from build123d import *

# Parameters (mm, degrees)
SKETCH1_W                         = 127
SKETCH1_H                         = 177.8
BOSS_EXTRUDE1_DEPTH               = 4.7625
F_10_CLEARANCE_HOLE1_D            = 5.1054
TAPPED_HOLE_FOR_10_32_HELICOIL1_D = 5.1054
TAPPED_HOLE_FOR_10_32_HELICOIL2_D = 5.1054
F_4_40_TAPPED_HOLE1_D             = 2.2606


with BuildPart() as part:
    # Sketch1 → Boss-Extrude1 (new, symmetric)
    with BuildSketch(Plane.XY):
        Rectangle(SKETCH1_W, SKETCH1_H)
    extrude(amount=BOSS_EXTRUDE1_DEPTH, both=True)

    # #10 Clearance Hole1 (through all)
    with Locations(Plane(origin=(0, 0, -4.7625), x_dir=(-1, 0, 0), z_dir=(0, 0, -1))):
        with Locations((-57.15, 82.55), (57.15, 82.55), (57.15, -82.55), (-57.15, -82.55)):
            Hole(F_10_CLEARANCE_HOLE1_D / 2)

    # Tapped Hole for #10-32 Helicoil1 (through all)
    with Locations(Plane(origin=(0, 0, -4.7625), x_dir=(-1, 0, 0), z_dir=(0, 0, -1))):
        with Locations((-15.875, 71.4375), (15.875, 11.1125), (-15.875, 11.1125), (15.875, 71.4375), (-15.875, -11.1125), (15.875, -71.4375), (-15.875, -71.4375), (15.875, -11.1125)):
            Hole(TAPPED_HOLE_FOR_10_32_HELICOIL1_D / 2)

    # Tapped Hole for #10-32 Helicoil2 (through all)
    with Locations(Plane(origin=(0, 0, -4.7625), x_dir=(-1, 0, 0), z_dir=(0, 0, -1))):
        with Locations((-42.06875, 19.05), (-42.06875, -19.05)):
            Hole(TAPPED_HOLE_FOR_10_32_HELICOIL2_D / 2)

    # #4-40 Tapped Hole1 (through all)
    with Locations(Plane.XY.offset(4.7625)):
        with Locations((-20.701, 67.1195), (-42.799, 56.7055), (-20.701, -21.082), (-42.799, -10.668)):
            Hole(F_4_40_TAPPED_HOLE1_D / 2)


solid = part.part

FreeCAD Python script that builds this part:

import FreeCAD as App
import Part
import Sketcher
Q = App.Units.Quantity


def add_polygon(sketch, points):
    """Adds a closed chain of lines whose ends are joined by coincident constraints."""
    first, n = sketch.GeometryCount, len(points)
    for a, b in zip(points, points[1:] + points[:1]):
        sketch.addGeometry(Part.LineSegment(App.Vector(*a, 0), App.Vector(*b, 0)), False)
    for i in range(n):
        sketch.addConstraint(Sketcher.Constraint("Coincident", first + i, 2, first + (i + 1) % n, 1))

doc = App.newDocument("Part")
body = doc.addObject("PartDesign::Body", "Body")

# Sketch on XY plane
sketch1 = body.newObject("Sketcher::SketchObject", "Sketch")
sketch1.AttachmentSupport = (doc.getObject("XY_Plane"), [""])
sketch1.MapMode = "FlatFace"
add_polygon(sketch1, [(-64, 89), (-64, -89), (64, -89), (64, 89)])  # lines 0-3
sketch1.addConstraint([
    Sketcher.Constraint("Vertical", 0),
    Sketcher.Constraint("Horizontal", 1),
    Sketcher.Constraint("Vertical", 2),
    Sketcher.Constraint("Horizontal", 3),
    Sketcher.Constraint("Symmetric", 0, 2, 2, 2, -1, 1),
    Sketcher.Constraint("DistanceX", 1, 1, 1, 2, Q("5 in")),
    Sketcher.Constraint("DistanceY", 0, 2, 0, 1, Q("7 in")),
])
pad1 = body.newObject("PartDesign::Pad", "Pad")
pad1.Profile = sketch1
pad1.Length = Q("0.375 in")
pad1.Midplane = True

# Sketch on XY plane
sketch2 = body.newObject("Sketcher::SketchObject", "Sketch001")
sketch2.AttachmentSupport = (doc.getObject("XY_Plane"), [""])
sketch2.MapMode = "FlatFace"
sketch2.AttachmentOffset = App.Placement(App.Vector(0, 0, -0.1875 * 25.4), App.Rotation())
sketch2.addGeometry([
    Part.Circle(App.Vector(57.1, 82.5, 0), App.Vector(0, 0, 1), 2.6),
    Part.Circle(App.Vector(-57.1, 82.5, 0), App.Vector(0, 0, 1), 2.6),
    Part.Circle(App.Vector(-57.1, -82.5, 0), App.Vector(0, 0, 1), 2.6),
    Part.Circle(App.Vector(57.1, -82.5, 0), App.Vector(0, 0, 1), 2.6),
], False)
sketch2.addConstraint([
    Sketcher.Constraint("Equal", 0, 1),
    Sketcher.Constraint("Equal", 1, 2),
    Sketcher.Constraint("Equal", 2, 3),
    Sketcher.Constraint("Symmetric", 0, 3, 2, 3, -1, 1),
    Sketcher.Constraint("Symmetric", 1, 3, 3, 3, -1, 1),
    Sketcher.Constraint("Symmetric", 0, 3, 1, 3, -2),
    Sketcher.Constraint("Diameter", 0, Q("0.201 in")),
    Sketcher.Constraint("DistanceX", 1, 3, 0, 3, Q("4.5 in")),
    Sketcher.Constraint("DistanceY", 2, 3, 1, 3, Q("6.5 in")),
])
doc.recompute()
hole = body.newObject("PartDesign::Hole", "Hole")
hole.Profile = sketch2
hole.ThreadType = "None"
hole.Diameter = Q("0.201 in")
hole.DepthType = "ThroughAll"
hole.Reversed = True

# Sketch on XY plane
sketch3 = body.newObject("Sketcher::SketchObject", "Sketch002")
sketch3.AttachmentSupport = (doc.getObject("XY_Plane"), [""])
sketch3.MapMode = "FlatFace"
sketch3.AttachmentOffset = App.Placement(App.Vector(0, 0, -0.1875 * 25.4), App.Rotation())
sketch3.addGeometry([
    Part.Circle(App.Vector(15.9, 71.4, 0), App.Vector(0, 0, 1), 2.6),  # 0
    Part.Circle(App.Vector(-15.9, 11.1, 0), App.Vector(0, 0, 1), 2.6),  # 1
    Part.Circle(App.Vector(15.9, 11.1, 0), App.Vector(0, 0, 1), 2.6),  # 2
    Part.Circle(App.Vector(-15.9, 71.4, 0), App.Vector(0, 0, 1), 2.6),  # 3
    Part.Circle(App.Vector(15.9, -11.1, 0), App.Vector(0, 0, 1), 2.6),  # 4
    Part.Circle(App.Vector(-15.9, -71.4, 0), App.Vector(0, 0, 1), 2.6),  # 5
    Part.Circle(App.Vector(15.9, -71.4, 0), App.Vector(0, 0, 1), 2.6),  # 6
    Part.Circle(App.Vector(-15.9, -11.1, 0), App.Vector(0, 0, 1), 2.6),  # 7
], False)
sketch3.addConstraint([
    Sketcher.Constraint("Equal", 0, 1),
    Sketcher.Constraint("Equal", 1, 2),
    Sketcher.Constraint("Equal", 2, 3),
    Sketcher.Constraint("Equal", 3, 4),
    Sketcher.Constraint("Equal", 4, 5),
    Sketcher.Constraint("Equal", 5, 6),
    Sketcher.Constraint("Equal", 6, 7),
    Sketcher.Constraint("Symmetric", 1, 3, 4, 3, -1, 1),
    Sketcher.Constraint("Symmetric", 0, 3, 5, 3, -1, 1),
    Sketcher.Constraint("Symmetric", 3, 3, 6, 3, -1, 1),
    Sketcher.Constraint("Symmetric", 2, 3, 7, 3, -1, 1),
    Sketcher.Constraint("Symmetric", 1, 3, 2, 3, -2),
    Sketcher.Constraint("Symmetric", 0, 3, 3, 3, -2),
    Sketcher.Constraint("Vertical", 0, 3, 2, 3),
    Sketcher.Constraint("Diameter", 0, Q("0.201 in")),
    Sketcher.Constraint("DistanceX", 1, 3, 0, 3, Q("1.25 in")),
    Sketcher.Constraint("DistanceY", 4, 3, 0, 3, Q("3.25 in")),
    Sketcher.Constraint("DistanceY", -1, 1, 0, 3, Q("2.8125 in")),
])
doc.recompute()
hole2 = body.newObject("PartDesign::Hole", "Hole001")
hole2.Profile = sketch3
hole2.ThreadType = "None"
hole2.Diameter = Q("0.201 in")
hole2.DepthType = "ThroughAll"
hole2.Reversed = True

# Sketch on XY plane
sketch4 = body.newObject("Sketcher::SketchObject", "Sketch003")
sketch4.AttachmentSupport = (doc.getObject("XY_Plane"), [""])
sketch4.MapMode = "FlatFace"
sketch4.AttachmentOffset = App.Placement(App.Vector(0, 0, -0.1875 * 25.4), App.Rotation())
sketch4.addGeometry([
    Part.Circle(App.Vector(42.1, 19.1, 0), App.Vector(0, 0, 1), 2.6),
    Part.Circle(App.Vector(42.1, -19.1, 0), App.Vector(0, 0, 1), 2.6),
], False)
sketch4.addConstraint([
    Sketcher.Constraint("Equal", 0, 1),
    Sketcher.Constraint("Symmetric", 0, 3, 1, 3, -1),
    Sketcher.Constraint("Diameter", 0, Q("0.201 in")),
    Sketcher.Constraint("DistanceY", 1, 3, 0, 3, Q("1.5 in")),
    Sketcher.Constraint("DistanceX", -1, 1, 0, 3, Q("1.65625 in")),
])
doc.recompute()
hole3 = body.newObject("PartDesign::Hole", "Hole002")
hole3.Profile = sketch4
hole3.ThreadType = "None"
hole3.Diameter = Q("0.201 in")
hole3.DepthType = "ThroughAll"
hole3.Reversed = True

# Sketch on XY plane
sketch5 = body.newObject("Sketcher::SketchObject", "Sketch004")
sketch5.AttachmentSupport = (doc.getObject("XY_Plane"), [""])
sketch5.MapMode = "FlatFace"
sketch5.AttachmentOffset = App.Placement(App.Vector(0, 0, 0.1875 * 25.4), App.Rotation())
sketch5.addGeometry([
    Part.Circle(App.Vector(-20.7, 67.1, 0), App.Vector(0, 0, 1), 1.1),
    Part.Circle(App.Vector(-42.8, 56.7, 0), App.Vector(0, 0, 1), 1.1),
    Part.Circle(App.Vector(-20.7, -21.1, 0), App.Vector(0, 0, 1), 1.1),
    Part.Circle(App.Vector(-42.8, -10.7, 0), App.Vector(0, 0, 1), 1.1),
], False)
sketch5.addConstraint([
    Sketcher.Constraint("Equal", 0, 1),
    Sketcher.Constraint("Equal", 1, 2),
    Sketcher.Constraint("Equal", 2, 3),
    Sketcher.Constraint("Vertical", 0, 3, 2, 3),
    Sketcher.Constraint("Vertical", 1, 3, 3, 3),
    Sketcher.Constraint("Diameter", 0, Q("0.089 in")),
    Sketcher.Constraint("DistanceY", 2, 3, -1, 1, Q("0.83 in")),
    Sketcher.Constraint("DistanceY", 3, 3, -1, 1, Q("0.42 in")),
    Sketcher.Constraint("DistanceX", 1, 3, 0, 3, Q("0.87 in")),
    Sketcher.Constraint("DistanceY", 1, 3, 0, 3, Q("0.41 in")),
    Sketcher.Constraint("DistanceX", 0, 3, -1, 1, Q("0.815 in")),
    Sketcher.Constraint("DistanceY", 2, 3, 1, 3, Q("3.0625 in")),
])
doc.recompute()
hole4 = body.newObject("PartDesign::Hole", "Hole003")
hole4.Profile = sketch5
hole4.ThreadType = "None"
hole4.Diameter = Q("0.089 in")
hole4.DepthType = "ThroughAll"

doc.recompute()
